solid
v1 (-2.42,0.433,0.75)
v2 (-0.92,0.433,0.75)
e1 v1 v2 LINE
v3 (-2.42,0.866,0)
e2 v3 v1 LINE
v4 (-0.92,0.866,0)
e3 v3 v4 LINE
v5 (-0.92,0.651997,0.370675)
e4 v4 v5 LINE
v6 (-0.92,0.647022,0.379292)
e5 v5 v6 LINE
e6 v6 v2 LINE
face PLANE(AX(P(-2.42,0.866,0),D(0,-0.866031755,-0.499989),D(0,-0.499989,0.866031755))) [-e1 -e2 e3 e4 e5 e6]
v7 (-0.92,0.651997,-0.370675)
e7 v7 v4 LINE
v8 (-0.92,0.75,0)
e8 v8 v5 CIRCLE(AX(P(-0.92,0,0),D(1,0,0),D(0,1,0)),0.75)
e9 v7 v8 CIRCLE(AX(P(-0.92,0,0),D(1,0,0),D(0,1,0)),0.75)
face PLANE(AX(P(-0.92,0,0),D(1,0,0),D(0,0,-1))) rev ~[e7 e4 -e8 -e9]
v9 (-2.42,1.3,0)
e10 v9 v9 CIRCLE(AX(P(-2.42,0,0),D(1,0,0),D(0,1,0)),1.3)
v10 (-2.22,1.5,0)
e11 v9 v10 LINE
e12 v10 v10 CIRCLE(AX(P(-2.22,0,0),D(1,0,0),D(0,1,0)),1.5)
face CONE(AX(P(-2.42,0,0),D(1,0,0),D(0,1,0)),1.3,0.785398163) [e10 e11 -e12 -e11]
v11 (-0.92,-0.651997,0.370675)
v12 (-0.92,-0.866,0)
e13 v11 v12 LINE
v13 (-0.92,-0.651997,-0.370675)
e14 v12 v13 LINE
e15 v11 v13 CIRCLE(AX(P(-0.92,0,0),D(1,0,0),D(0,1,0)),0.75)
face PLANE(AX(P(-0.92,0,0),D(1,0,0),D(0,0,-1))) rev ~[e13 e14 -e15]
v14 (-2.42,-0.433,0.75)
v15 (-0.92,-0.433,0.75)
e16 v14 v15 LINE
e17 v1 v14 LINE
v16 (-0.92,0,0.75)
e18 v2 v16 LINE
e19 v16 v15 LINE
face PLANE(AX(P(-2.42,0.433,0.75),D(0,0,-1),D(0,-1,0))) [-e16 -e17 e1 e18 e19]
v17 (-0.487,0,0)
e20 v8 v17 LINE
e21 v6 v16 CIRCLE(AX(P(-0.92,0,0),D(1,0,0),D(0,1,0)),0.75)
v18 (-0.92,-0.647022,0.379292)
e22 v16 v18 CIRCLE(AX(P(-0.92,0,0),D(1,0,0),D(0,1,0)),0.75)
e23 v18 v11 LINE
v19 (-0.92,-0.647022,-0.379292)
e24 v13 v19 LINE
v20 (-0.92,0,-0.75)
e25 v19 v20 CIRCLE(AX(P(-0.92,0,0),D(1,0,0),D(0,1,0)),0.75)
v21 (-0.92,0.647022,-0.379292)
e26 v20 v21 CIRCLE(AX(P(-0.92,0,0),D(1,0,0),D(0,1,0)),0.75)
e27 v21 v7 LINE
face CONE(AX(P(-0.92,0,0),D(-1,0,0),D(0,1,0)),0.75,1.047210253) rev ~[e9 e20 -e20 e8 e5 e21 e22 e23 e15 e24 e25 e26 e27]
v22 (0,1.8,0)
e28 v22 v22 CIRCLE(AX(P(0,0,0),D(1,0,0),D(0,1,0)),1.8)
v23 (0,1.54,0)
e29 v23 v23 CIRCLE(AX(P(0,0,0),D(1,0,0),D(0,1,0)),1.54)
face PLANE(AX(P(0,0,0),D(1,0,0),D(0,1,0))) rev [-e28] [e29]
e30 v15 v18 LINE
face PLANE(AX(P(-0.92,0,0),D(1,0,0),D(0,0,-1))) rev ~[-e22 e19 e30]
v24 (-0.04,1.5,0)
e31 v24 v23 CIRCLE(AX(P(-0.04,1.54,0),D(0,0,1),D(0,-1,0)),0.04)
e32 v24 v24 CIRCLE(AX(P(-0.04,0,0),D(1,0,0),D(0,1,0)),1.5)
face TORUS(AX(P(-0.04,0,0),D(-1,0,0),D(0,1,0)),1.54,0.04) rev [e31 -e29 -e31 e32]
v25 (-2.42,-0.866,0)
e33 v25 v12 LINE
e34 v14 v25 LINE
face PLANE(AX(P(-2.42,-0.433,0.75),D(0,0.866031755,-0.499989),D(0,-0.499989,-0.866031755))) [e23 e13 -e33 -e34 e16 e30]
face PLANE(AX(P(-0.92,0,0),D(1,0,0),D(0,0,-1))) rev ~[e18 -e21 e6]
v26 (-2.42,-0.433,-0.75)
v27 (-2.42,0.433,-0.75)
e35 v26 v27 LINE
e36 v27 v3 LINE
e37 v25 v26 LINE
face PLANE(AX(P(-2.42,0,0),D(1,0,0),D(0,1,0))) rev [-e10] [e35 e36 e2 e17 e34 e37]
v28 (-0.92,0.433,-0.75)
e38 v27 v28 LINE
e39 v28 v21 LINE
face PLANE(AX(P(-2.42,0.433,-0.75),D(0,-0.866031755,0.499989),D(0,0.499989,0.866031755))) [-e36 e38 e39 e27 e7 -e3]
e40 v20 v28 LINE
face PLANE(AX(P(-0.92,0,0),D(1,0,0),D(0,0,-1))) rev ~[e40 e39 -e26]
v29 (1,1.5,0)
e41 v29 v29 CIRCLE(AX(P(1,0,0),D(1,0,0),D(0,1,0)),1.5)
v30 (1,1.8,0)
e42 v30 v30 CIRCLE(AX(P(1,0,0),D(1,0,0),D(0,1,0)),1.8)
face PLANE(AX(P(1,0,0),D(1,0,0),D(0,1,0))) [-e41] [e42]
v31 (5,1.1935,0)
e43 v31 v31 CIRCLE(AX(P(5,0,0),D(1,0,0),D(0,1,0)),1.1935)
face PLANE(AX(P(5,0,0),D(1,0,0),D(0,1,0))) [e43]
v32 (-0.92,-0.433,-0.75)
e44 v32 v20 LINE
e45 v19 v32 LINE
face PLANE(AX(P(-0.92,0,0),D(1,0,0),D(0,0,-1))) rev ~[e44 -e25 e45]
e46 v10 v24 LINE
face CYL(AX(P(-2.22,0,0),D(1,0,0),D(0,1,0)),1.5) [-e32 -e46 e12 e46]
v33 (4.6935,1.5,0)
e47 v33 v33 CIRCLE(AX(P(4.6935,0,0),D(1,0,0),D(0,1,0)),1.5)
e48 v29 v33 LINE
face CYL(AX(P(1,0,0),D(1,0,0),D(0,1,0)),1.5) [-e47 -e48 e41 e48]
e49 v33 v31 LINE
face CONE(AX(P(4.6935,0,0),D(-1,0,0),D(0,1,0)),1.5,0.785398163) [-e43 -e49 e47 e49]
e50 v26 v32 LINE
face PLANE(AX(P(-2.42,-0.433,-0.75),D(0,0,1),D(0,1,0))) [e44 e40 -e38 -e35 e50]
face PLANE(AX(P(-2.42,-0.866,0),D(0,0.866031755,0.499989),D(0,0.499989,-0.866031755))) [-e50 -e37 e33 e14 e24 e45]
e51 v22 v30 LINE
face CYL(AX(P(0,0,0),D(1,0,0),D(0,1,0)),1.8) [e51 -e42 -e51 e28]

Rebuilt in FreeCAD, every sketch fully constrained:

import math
import FreeCAD as App
import Part
import Sketcher
from FreeCAD import Vector
Q = App.Units.Quantity


def add_polygon(sketch, points):
    """Adds a closed chain of lines whose ends are joined by coincident constraints."""
    first, n = sketch.GeometryCount, len(points)
    for a, b in zip(points, points[1:] + points[:1]):
        sketch.addGeometry(Part.LineSegment(App.Vector(*a, 0), App.Vector(*b, 0)), False)
    for i in range(n):
        sketch.addConstraint(Sketcher.Constraint("Coincident", first + i, 2, first + (i + 1) % n, 1))

doc = App.newDocument("Part")
params = doc.addObject("Spreadsheet::Sheet", "Params")
for row, (alias, value) in enumerate([
    ("sketch1_width", "1 mm"),
    ("sketch1_radius", "0.04 mm"),
    ("sketch1_height", "1.8 mm"),
    ("sketch1_height2", "1.3 mm"),
    ("sketch1_width2", "3.42 mm"),
    ("revolution_angle", "360 deg"),
    ("sketch2_width", "4 mm"),
    ("sketch2_height", "1.5 mm"),
    ("revolution2_angle", "360 deg"),
    ("pocket1_length", "1.5 mm"),
    ("sketch4_height", "0.75 mm"),
    ("groove_angle", "360 deg"),
], start=1):
    params.set(f"A{row}", alias)
    params.set(f"B{row}", "=" + value)
    params.setAlias(f"B{row}", alias)

body = doc.addObject("PartDesign::Body", "Body")

# Sketch on XY plane
sketch1 = doc.addObject("Sketcher::SketchObject", "Sketch")
body.addObject(sketch1)
sketch1.AttachmentSupport = (doc.XY_Plane, [""])
sketch1.MapMode = "FlatFace"
sketch1.addGeometry([
    Part.LineSegment(Vector(-2.42, 0, 0), Vector(1, 0, 0)),  # 0
    Part.LineSegment(Vector(1, 0, 0), Vector(1, 1.8, 0)),  # 1
    Part.LineSegment(Vector(1, 1.8, 0), Vector(0, 1.8, 0)),  # 2
    Part.LineSegment(Vector(0, 1.8, 0), Vector(0, 1.54, 0)),  # 3
    Part.ArcOfCircle(Part.Circle(Vector(-0.04, 1.54, 0), Vector(0, 0, 1), 0.04), math.radians(-90), math.radians(0)),  # 4
    Part.LineSegment(Vector(-0.04, 1.5, 0), Vector(-2.22, 1.5, 0)),  # 5
    Part.LineSegment(Vector(-2.22, 1.5, 0), Vector(-2.42, 1.3, 0)),  # 6
    Part.LineSegment(Vector(-2.42, 1.3, 0), Vector(-2.42, 0, 0)),  # 7
], False)
sketch1.addConstraint([
    Sketcher.Constraint("Coincident", 0, 2, 1, 1),
    Sketcher.Constraint("Coincident", 1, 2, 2, 1),
    Sketcher.Constraint("Coincident", 2, 2, 3, 1),
    Sketcher.Constraint("Tangent", 3, 2, 4, 2),
    Sketcher.Constraint("Tangent", 4, 1, 5, 1),
    Sketcher.Constraint("Coincident", 5, 2, 6, 1),
    Sketcher.Constraint("Coincident", 6, 2, 7, 1),
    Sketcher.Constraint("Coincident", 7, 2, 0, 1),
    Sketcher.Constraint("Horizontal", 0),
    Sketcher.Constraint("Vertical", 1),
    Sketcher.Constraint("Horizontal", 2),
    Sketcher.Constraint("Vertical", 3),
    Sketcher.Constraint("Horizontal", 5),
    Sketcher.Constraint("Vertical", 7),
    Sketcher.Constraint("PointOnObject", 0, 2, -1),
    Sketcher.Constraint("PointOnObject", 2, 2, -2),
    Sketcher.Constraint("DistanceX", 2, 2, 2, 1, 1.0),
    Sketcher.Constraint("Angle", 6, Q("-135 deg")),
    Sketcher.Constraint("Radius", 4, 0.04),
    Sketcher.Constraint("DistanceY", 1, 1, 1, 2, 1.8),
    Sketcher.Constraint("DistanceY", 7, 2, 7, 1, 1.3),
    Sketcher.Constraint("DistanceX", 0, 1, 0, 2, 3.42),
    Sketcher.Constraint("DistanceX", 5, 2, 5, 1, 2.18),
])
sketch1.setExpression("Constraints[16]", "Params.sketch1_width")
sketch1.setExpression("Constraints[18]", "Params.sketch1_radius")
sketch1.setExpression("Constraints[19]", "Params.sketch1_height")
sketch1.setExpression("Constraints[20]", "Params.sketch1_height2")
sketch1.setExpression("Constraints[21]", "Params.sketch1_width2")
revolution = doc.addObject("PartDesign::Revolution", "Revolution")
body.addObject(revolution)
revolution.Profile = sketch1
revolution.ReferenceAxis = (sketch1, ["H_Axis"])
revolution.setExpression("Angle", "Params.revolution_angle")

# Sketch on XY plane
sketch2 = doc.addObject("Sketcher::SketchObject", "Sketch001")
body.addObject(sketch2)
sketch2.AttachmentSupport = (doc.XY_Plane, [""])
sketch2.MapMode = "FlatFace"
add_polygon(sketch2, [(1, 0), (5, 0), (5, 1.19), (4.69, 1.5), (1, 1.5)])  # lines 0-4
sketch2.addConstraint([
    Sketcher.Constraint("Horizontal", 0),
    Sketcher.Constraint("Vertical", 1),
    Sketcher.Constraint("Horizontal", 3),
    Sketcher.Constraint("Vertical", 4),
    Sketcher.Constraint("PointOnObject", 0, 2, -1),
    Sketcher.Constraint("DistanceX", 0, 1, 0, 2, 4.0),
    Sketcher.Constraint("Angle", 2, Q("135 deg")),
    Sketcher.Constraint("DistanceY", 4, 2, 4, 1, 1.5),
    Sketcher.Constraint("DistanceX", -1, 1, 0, 2, 5.0),
    Sketcher.Constraint("DistanceX", 3, 2, 3, 1, 3.6935),
])
sketch2.setExpression("Constraints[10]", "Params.sketch2_width")
sketch2.setExpression("Constraints[12]", "Params.sketch2_height")
revolution2 = doc.addObject("PartDesign::Revolution", "Revolution001")
body.addObject(revolution2)
revolution2.Profile = sketch2
revolution2.ReferenceAxis = (sketch2, ["H_Axis"])
revolution2.setExpression("Angle", "Params.revolution2_angle")

# Sketch on YZ plane
sketch3 = doc.addObject("Sketcher::SketchObject", "Sketch002")
body.addObject(sketch3)
sketch3.AttachmentSupport = (doc.YZ_Plane, [""])
sketch3.MapMode = "FlatFace"
sketch3.AttachmentOffset = App.Placement(Vector(0, 0, -2.42), App.Rotation())
add_polygon(sketch3, [(0.4, 0.8), (-0.4, 0.8), (-0.9, 0), (-0.4, -0.8), (0.4, -0.8), (0.9, 0)])  # lines 0-5
sketch3.addConstraint([
    Sketcher.Constraint("Horizontal", 0),
    Sketcher.Constraint("Horizontal", 3),
    Sketcher.Constraint("Symmetric", 0, 2, 3, 2, -1, 1),
    Sketcher.Constraint("Symmetric", 1, 2, 4, 2, -1, 1),
    Sketcher.Constraint("PointOnObject", 1, 2, -1),
    Sketcher.Constraint("Parallel", 2, 5),
    Sketcher.Constraint("Vertical", 0, 2, 2, 2),
    Sketcher.Constraint("Angle", 1, Q("-119.9993 deg")),
    Sketcher.Constraint("DistanceY", 2, 2, 0, 2, 1.5),
    Sketcher.Constraint("DistanceX", 0, 2, 0, 1, 0.866),
])
pocket1 = doc.addObject("PartDesign::Pocket", "Pocket")
body.addObject(pocket1)
pocket1.Profile = sketch3
pocket1.setExpression("Length", "Params.pocket1_length")
pocket1.Reversed = True

# Sketch on XY plane
sketch4 = doc.addObject("Sketcher::SketchObject", "Sketch003")
body.addObject(sketch4)
sketch4.AttachmentSupport = (doc.XY_Plane, [""])
sketch4.MapMode = "FlatFace"
add_polygon(sketch4, [(-0.92, 0), (-0.49, 0), (-0.92, 0.75)])  # lines 0-2
sketch4.addConstraint([
    Sketcher.Constraint("Horizontal", 0),
    Sketcher.Constraint("Vertical", 2),
    Sketcher.Constraint("PointOnObject", 0, 2, -1),
    Sketcher.Constraint("Angle", 1, Q("119.9993 deg")),
    Sketcher.Constraint("DistanceY", 2, 2, 2, 1, 0.75),
    Sketcher.Constraint("DistanceX", 1, 2, -1, 1, 0.92),
])
sketch4.setExpression("Constraints[7]", "Params.sketch4_height")
groove = doc.addObject("PartDesign::Groove", "Groove")
body.addObject(groove)
groove.Profile = sketch4
groove.ReferenceAxis = (sketch4, ["H_Axis"])
groove.setExpression("Angle", "Params.groove_angle")

doc.recompute()
